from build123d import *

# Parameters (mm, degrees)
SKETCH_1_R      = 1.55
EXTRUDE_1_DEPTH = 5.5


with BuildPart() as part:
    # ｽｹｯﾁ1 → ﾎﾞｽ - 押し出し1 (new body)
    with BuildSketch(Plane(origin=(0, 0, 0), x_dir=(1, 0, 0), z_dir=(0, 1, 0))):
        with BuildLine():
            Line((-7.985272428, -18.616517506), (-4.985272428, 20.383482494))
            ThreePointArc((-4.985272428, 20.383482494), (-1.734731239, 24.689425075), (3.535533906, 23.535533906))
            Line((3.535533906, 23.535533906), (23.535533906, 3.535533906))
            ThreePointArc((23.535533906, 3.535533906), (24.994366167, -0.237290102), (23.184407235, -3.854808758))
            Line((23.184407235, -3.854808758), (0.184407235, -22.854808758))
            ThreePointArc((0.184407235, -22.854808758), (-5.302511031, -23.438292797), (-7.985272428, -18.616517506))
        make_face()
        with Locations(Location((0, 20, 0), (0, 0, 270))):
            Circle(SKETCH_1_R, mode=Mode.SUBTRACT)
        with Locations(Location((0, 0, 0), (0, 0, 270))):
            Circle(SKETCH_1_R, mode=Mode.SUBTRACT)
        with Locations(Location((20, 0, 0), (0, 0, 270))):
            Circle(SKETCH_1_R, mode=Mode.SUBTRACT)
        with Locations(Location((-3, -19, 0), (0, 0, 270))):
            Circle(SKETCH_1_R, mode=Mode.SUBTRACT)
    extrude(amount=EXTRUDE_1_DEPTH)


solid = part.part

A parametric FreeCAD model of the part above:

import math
import FreeCAD as App
import Part
import Sketcher

V = App.Vector
Q = App.Units.Quantity

doc = App.newDocument("Part")
body = doc.addObject("PartDesign::Body", "Body")

sketch1 = body.newObject("Sketcher::SketchObject", "Sketch")
sketch1.AttachmentSupport = (doc.getObject("XZ_Plane"), [""])
sketch1.MapMode = "FlatFace"
sketch1.addGeometry(Part.LineSegment(V(-5, -20.4, 0), V(-8, 18.6, 0)), False)
sketch1.addGeometry(Part.ArcOfCircle(Part.Circle(V(-3, 19, 0), V(0, 0, 1), 5), math.radians(50), math.radians(184)), False)
sketch1.addGeometry(Part.LineSegment(V(0.2, 22.9, 0), V(23.2, 3.9, 0)), False)
sketch1.addGeometry(Part.ArcOfCircle(Part.Circle(V(20, 0, 0), V(0, 0, 1), 5), math.radians(-45), math.radians(50)), False)
sketch1.addGeometry(Part.LineSegment(V(23.5, -3.5, 0), V(3.5, -23.5, 0)), False)
sketch1.addGeometry(Part.ArcOfCircle(Part.Circle(V(0, -20, 0), V(0, 0, 1), 5), math.radians(-176), math.radians(-45)), False)
sketch1.addGeometry(Part.Circle(V(20, 0, 0), V(0, 0, 1), 1.6), False)
sketch1.addGeometry(Part.Circle(V(-3, 19, 0), V(0, 0, 1), 1.6), False)
sketch1.addGeometry(Part.Circle(V(0, 0, 0), V(0, 0, 1), 1.6), False)
sketch1.addGeometry(Part.Circle(V(0, -20, 0), V(0, 0, 1), 1.6), False)
sketch1.addConstraint(Sketcher.Constraint("Tangent", 0, 2, 1, 2))
sketch1.addConstraint(Sketcher.Constraint("Tangent", 1, 1, 2, 1))
sketch1.addConstraint(Sketcher.Constraint("Tangent", 2, 2, 3, 2))
sketch1.addConstraint(Sketcher.Constraint("Tangent", 3, 1, 4, 1))
sketch1.addConstraint(Sketcher.Constraint("Tangent", 4, 2, 5, 2))
sketch1.addConstraint(Sketcher.Constraint("Tangent", 5, 1, 0, 1))
sketch1.addConstraint(Sketcher.Constraint("Coincident", 8, 3, -1, 1))
sketch1.addConstraint(Sketcher.Constraint("Coincident", 6, 3, 3, 3))
sketch1.addConstraint(Sketcher.Constraint("Coincident", 7, 3, 1, 3))
sketch1.addConstraint(Sketcher.Constraint("Coincident", 9, 3, 5, 3))
sketch1.addConstraint(Sketcher.Constraint("Equal", 1, 3))
sketch1.addConstraint(Sketcher.Constraint("Equal", 3, 5))
sketch1.addConstraint(Sketcher.Constraint("Equal", 6, 7))
sketch1.addConstraint(Sketcher.Constraint("Equal", 7, 8))
sketch1.addConstraint(Sketcher.Constraint("Equal", 8, 9))
sketch1.addConstraint(Sketcher.Constraint("PointOnObject", 3, 3, -1))
sketch1.addConstraint(Sketcher.Constraint("PointOnObject", 5, 3, -2))
sketch1.addConstraint(Sketcher.Constraint("Radius", 1, Q("5 mm")))
sketch1.addConstraint(Sketcher.Constraint("Diameter", 6, Q("3.1 mm")))
sketch1.addConstraint(Sketcher.Constraint("Angle", 4, Q("-135 deg")))
sketch1.addConstraint(Sketcher.Constraint("DistanceX", 1, 3, -1, 1, Q("3 mm")))
sketch1.addConstraint(Sketcher.Constraint("DistanceY", -1, 1, 1, 3, Q("19 mm")))
sketch1.addConstraint(Sketcher.Constraint("DistanceX", -1, 1, 3, 3, Q("20 mm")))
pad1 = body.newObject("PartDesign::Pad", "Pad")
pad1.Profile = sketch1
pad1.Length = 5.5
pad1.Reversed = True

doc.recompute()
